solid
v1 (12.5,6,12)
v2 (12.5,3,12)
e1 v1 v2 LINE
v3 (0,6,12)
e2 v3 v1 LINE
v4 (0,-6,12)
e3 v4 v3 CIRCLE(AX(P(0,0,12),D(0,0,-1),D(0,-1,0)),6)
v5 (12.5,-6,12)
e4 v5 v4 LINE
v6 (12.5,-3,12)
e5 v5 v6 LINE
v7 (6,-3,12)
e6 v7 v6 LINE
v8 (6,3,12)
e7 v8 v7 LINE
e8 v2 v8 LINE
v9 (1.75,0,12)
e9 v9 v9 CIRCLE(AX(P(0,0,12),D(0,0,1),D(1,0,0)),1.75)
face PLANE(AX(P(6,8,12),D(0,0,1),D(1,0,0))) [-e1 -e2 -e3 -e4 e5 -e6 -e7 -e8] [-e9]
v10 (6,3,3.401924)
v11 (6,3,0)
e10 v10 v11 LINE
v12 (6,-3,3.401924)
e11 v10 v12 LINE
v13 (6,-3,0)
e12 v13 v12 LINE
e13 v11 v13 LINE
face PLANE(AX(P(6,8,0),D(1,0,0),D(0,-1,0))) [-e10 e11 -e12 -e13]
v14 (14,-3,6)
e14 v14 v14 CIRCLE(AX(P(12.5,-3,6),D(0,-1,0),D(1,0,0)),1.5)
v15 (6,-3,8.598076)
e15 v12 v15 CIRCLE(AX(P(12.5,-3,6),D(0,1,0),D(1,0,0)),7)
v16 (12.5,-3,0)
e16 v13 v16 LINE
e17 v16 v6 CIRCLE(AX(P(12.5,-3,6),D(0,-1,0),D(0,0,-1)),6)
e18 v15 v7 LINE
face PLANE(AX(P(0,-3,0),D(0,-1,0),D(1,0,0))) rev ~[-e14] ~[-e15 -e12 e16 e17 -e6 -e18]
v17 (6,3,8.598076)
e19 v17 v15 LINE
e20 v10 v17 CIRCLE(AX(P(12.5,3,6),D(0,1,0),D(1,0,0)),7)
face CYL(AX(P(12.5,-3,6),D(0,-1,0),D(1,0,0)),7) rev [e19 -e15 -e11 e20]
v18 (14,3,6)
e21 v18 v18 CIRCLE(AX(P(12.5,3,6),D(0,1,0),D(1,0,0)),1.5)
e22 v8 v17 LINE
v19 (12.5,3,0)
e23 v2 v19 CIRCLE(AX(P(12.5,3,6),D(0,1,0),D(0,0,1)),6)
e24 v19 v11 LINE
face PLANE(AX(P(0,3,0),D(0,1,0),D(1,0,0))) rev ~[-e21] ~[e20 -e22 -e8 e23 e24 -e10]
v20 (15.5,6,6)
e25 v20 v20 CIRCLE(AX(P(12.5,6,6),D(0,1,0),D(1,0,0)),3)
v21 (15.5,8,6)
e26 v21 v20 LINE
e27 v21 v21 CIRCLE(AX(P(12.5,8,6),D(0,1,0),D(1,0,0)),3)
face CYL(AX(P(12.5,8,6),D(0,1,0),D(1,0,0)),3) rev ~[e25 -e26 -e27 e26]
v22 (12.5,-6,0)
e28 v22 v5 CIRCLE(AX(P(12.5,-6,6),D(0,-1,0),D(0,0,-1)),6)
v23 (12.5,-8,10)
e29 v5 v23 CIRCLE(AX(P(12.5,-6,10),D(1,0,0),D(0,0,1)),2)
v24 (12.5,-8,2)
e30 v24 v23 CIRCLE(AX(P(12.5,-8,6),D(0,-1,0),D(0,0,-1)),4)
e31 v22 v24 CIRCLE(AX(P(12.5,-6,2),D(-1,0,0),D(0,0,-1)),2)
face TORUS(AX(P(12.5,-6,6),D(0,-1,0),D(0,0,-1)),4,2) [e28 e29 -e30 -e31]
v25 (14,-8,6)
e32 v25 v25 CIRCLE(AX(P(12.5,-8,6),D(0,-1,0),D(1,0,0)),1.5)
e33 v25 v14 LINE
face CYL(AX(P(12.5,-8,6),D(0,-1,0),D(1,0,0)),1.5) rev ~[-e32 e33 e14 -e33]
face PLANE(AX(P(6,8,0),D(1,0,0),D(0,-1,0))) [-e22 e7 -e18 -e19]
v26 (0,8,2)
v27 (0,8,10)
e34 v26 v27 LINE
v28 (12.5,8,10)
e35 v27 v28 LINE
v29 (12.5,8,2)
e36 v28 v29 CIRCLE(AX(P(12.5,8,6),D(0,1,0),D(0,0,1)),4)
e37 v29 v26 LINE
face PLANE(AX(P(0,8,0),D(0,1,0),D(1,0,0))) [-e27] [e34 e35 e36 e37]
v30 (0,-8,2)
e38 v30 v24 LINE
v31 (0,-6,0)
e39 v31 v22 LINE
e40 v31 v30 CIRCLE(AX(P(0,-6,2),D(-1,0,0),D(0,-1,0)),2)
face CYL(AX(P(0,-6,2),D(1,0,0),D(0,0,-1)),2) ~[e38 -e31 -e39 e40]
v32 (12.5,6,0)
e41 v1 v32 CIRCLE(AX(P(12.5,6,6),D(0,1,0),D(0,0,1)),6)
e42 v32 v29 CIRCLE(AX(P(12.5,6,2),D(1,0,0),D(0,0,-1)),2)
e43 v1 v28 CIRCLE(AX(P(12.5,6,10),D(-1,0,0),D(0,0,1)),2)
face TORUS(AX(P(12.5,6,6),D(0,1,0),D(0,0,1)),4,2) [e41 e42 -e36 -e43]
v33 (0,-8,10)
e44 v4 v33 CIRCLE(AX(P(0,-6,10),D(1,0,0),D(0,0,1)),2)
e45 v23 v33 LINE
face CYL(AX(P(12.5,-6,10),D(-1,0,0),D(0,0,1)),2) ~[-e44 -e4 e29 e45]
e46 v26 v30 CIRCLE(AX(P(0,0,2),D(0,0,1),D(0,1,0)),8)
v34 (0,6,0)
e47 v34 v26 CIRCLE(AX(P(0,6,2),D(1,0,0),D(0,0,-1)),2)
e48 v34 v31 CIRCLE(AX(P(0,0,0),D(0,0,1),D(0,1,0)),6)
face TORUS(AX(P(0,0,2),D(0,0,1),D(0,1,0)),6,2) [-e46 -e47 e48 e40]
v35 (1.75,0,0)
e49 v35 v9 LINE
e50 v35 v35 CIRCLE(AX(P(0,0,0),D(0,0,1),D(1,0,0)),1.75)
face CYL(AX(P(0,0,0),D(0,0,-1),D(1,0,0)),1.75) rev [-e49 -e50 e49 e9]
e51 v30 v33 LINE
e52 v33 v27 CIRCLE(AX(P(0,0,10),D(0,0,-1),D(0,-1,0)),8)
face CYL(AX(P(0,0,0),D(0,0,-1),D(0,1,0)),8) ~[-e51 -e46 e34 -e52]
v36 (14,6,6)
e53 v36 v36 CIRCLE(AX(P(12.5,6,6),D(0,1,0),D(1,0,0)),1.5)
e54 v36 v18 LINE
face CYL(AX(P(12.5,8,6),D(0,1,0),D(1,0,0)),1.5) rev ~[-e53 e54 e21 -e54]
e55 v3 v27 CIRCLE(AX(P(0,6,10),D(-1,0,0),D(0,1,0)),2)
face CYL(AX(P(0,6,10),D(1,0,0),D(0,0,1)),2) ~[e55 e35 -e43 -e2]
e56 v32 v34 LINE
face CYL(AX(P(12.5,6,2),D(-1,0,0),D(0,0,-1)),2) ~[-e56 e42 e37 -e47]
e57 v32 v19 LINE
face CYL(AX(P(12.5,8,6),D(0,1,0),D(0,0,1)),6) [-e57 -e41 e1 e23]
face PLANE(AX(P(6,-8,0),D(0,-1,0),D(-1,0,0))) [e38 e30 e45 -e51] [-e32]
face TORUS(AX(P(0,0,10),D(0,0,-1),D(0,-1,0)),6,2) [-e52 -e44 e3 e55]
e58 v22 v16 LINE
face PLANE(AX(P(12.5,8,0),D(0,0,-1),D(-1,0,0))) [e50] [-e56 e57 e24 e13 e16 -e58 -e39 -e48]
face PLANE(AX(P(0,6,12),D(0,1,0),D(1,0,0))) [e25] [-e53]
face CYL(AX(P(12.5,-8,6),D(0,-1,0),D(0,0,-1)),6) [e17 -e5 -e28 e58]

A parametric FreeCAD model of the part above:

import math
import FreeCAD as App
import Part
import Sketcher


def edges_at(feature, points):
    """Names of the edges that pass closest to the given points."""
    edges = feature.Shape.Edges
    near = lambda p: min(range(len(edges)), key=lambda i: edges[i].distToShape(Part.Vertex(*p))[0])
    return sorted({f"Edge{near(p) + 1}" for p in points})

doc = App.newDocument("Part")
params = doc.addObject("Spreadsheet::Sheet", "Params")
for row, (alias, value) in enumerate([
    ("sketch1_radius", "8 mm"),
    ("sketch1_diameter", "3.5 mm"),
    ("sketch1_width", "6 mm"),
    ("pad1_length", "12 mm"),
    ("sketch2_diameter", "3 mm"),
    ("sketch2_radius", "6 mm"),
    ("sketch2_width", "6.5 mm"),
    ("pad2_length", "5 mm"),
    ("sketch3_diameter", "3 mm"),
    ("sketch3_radius", "6 mm"),
    ("sketch3_width", "6.5 mm"),
    ("pad3_length", "5 mm"),
    ("sketch4_diameter", "6 mm"),
    ("sketch4_diameter2", "3 mm"),
    ("pocket1_length", "2 mm"),
    ("sketch5_diameter", "14 mm"),
    ("pocket2_length", "6 mm"),
    ("fillet_radius", "2 mm"),
], start=1):
    params.set(f"A{row}", alias)
    params.set(f"B{row}", "=" + value)
    params.setAlias(f"B{row}", alias)

body = doc.addObject("PartDesign::Body", "Body")

sketch1 = body.newObject("Sketcher::SketchObject", "Sketch")
sketch1.AttachmentSupport = (doc.getObject("XY_Plane"), [""])
sketch1.MapMode = "FlatFace"
sketch1.addGeometry(Part.LineSegment(App.Vector(6, 8, 0), App.Vector(0, 8, 0)), False)
sketch1.addGeometry(Part.ArcOfCircle(Part.Circle(App.Vector(0, 0, 0), App.Vector(0, 0, 1), 8), math.radians(90), math.radians(270)), False)
sketch1.addGeometry(Part.LineSegment(App.Vector(0, -8, 0), App.Vector(6, -8, 0)), False)
sketch1.addGeometry(Part.LineSegment(App.Vector(6, -8, 0), App.Vector(6, 8, 0)), False)
sketch1.addGeometry(Part.Circle(App.Vector(0, 0, 0), App.Vector(0, 0, 1), 1.8), False)
sketch1.addConstraint(Sketcher.Constraint("Tangent", 0, 2, 1, 1))
sketch1.addConstraint(Sketcher.Constraint("Tangent", 1, 2, 2, 1))
sketch1.addConstraint(Sketcher.Constraint("Coincident", 2, 2, 3, 1))
sketch1.addConstraint(Sketcher.Constraint("Coincident", 3, 2, 0, 1))
sketch1.addConstraint(Sketcher.Constraint("Horizontal", 0))
sketch1.addConstraint(Sketcher.Constraint("Horizontal", 2))
sketch1.addConstraint(Sketcher.Constraint("Vertical", 3))
sketch1.addConstraint(Sketcher.Constraint("Coincident", 1, 3, -1, 1))
sketch1.addConstraint(Sketcher.Constraint("Coincident", 4, 3, -1, 1))
sketch1.addConstraint(Sketcher.Constraint("Radius", 1, 8.0))
sketch1.addConstraint(Sketcher.Constraint("Diameter", 4, 3.5))
sketch1.addConstraint(Sketcher.Constraint("DistanceX", 0, 2, 0, 1, 6.0))
sketch1.setExpression("Constraints[9]", "Params.sketch1_radius")
sketch1.setExpression("Constraints[10]", "Params.sketch1_diameter")
sketch1.setExpression("Constraints[11]", "Params.sketch1_width")
pad1 = body.newObject("PartDesign::Pad", "Pad")
pad1.Profile = sketch1
pad1.setExpression("Length", "Params.pad1_length")

sketch2 = body.newObject("Sketcher::SketchObject", "Sketch001")
sketch2.AttachmentSupport = (doc.getObject("XZ_Plane"), [""])
sketch2.MapMode = "FlatFace"
sketch2.AttachmentOffset = App.Placement(App.Vector(0, 0, 8), App.Rotation())
sketch2.addGeometry(Part.LineSegment(App.Vector(6, 12, 0), App.Vector(6, 0, 0)), False)
sketch2.addGeometry(Part.LineSegment(App.Vector(6, 0, 0), App.Vector(12.5, 0, 0)), False)
sketch2.addGeometry(Part.ArcOfCircle(Part.Circle(App.Vector(12.5, 6, 0), App.Vector(0, 0, 1), 6), math.radians(-90), math.radians(90)), False)
sketch2.addGeometry(Part.LineSegment(App.Vector(12.5, 12, 0), App.Vector(6, 12, 0)), False)
sketch2.addGeometry(Part.Circle(App.Vector(12.5, 6, 0), App.Vector(0, 0, 1), 1.5), False)
sketch2.addConstraint(Sketcher.Constraint("Coincident", 0, 2, 1, 1))
sketch2.addConstraint(Sketcher.Constraint("Tangent", 1, 2, 2, 1))
sketch2.addConstraint(Sketcher.Constraint("Tangent", 2, 2, 3, 1))
sketch2.addConstraint(Sketcher.Constraint("Coincident", 3, 2, 0, 1))
sketch2.addConstraint(Sketcher.Constraint("Vertical", 0))
sketch2.addConstraint(Sketcher.Constraint("Horizontal", 1))
sketch2.addConstraint(Sketcher.Constraint("Horizontal", 3))
sketch2.addConstraint(Sketcher.Constraint("Coincident", 4, 3, 2, 3))
sketch2.addConstraint(Sketcher.Constraint("PointOnObject", 0, 2, -1))
sketch2.addConstraint(Sketcher.Constraint("Diameter", 4, 3.0))
sketch2.addConstraint(Sketcher.Constraint("Radius", 2, 6.0))
sketch2.addConstraint(Sketcher.Constraint("DistanceX", -1, 1, 2, 3, 12.5))
sketch2.addConstraint(Sketcher.Constraint("DistanceX", 1, 1, 1, 2, 6.5))
sketch2.setExpression("Constraints[9]", "Params.sketch2_diameter")
sketch2.setExpression("Constraints[10]", "Params.sketch2_radius")
sketch2.setExpression("Constraints[12]", "Params.sketch2_width")
pad2 = body.newObject("PartDesign::Pad", "Pad001")
pad2.Profile = sketch2
pad2.setExpression("Length", "Params.pad2_length")
pad2.Reversed = True

sketch3 = body.newObject("Sketcher::SketchObject", "Sketch002")
sketch3.AttachmentSupport = (doc.getObject("XZ_Plane"), [""])
sketch3.MapMode = "FlatFace"
sketch3.AttachmentOffset = App.Placement(App.Vector(0, 0, -8), App.Rotation())
sketch3.addGeometry(Part.LineSegment(App.Vector(6, 0, 0), App.Vector(6, 12, 0)), False)
sketch3.addGeometry(Part.LineSegment(App.Vector(6, 12, 0), App.Vector(12.5, 12, 0)), False)
sketch3.addGeometry(Part.ArcOfCircle(Part.Circle(App.Vector(12.5, 6, 0), App.Vector(0, 0, 1), 6), math.radians(-90), math.radians(90)), False)
sketch3.addGeometry(Part.LineSegment(App.Vector(12.5, 0, 0), App.Vector(6, 0, 0)), False)
sketch3.addGeometry(Part.Circle(App.Vector(12.5, 6, 0), App.Vector(0, 0, 1), 1.5), False)
sketch3.addConstraint(Sketcher.Constraint("Coincident", 0, 2, 1, 1))
sketch3.addConstraint(Sketcher.Constraint("Tangent", 1, 2, 2, 2))
sketch3.addConstraint(Sketcher.Constraint("Tangent", 2, 1, 3, 1))
sketch3.addConstraint(Sketcher.Constraint("Coincident", 3, 2, 0, 1))
sketch3.addConstraint(Sketcher.Constraint("Vertical", 0))
sketch3.addConstraint(Sketcher.Constraint("Horizontal", 1))
sketch3.addConstraint(Sketcher.Constraint("Horizontal", 3))
sketch3.addConstraint(Sketcher.Constraint("Coincident", 4, 3, 2, 3))
sketch3.addConstraint(Sketcher.Constraint("PointOnObject", 2, 1, -1))
sketch3.addConstraint(Sketcher.Constraint("Diameter", 4, 3.0))
sketch3.addConstraint(Sketcher.Constraint("Radius", 2, 6.0))
sketch3.addConstraint(Sketcher.Constraint("DistanceX", 1, 1, 1, 2, 6.5))
sketch3.addConstraint(Sketcher.Constraint("DistanceX", -1, 1, 0, 2, 6.0))
sketch3.setExpression("Constraints[9]", "Params.sketch3_diameter")
sketch3.setExpression("Constraints[10]", "Params.sketch3_radius")
sketch3.setExpression("Constraints[11]", "Params.sketch3_width")
pad3 = body.newObject("PartDesign::Pad", "Pad002")
pad3.Profile = sketch3
pad3.setExpression("Length", "Params.pad3_length")

sketch4 = body.newObject("Sketcher::SketchObject", "Sketch003")
sketch4.AttachmentSupport = (doc.getObject("XZ_Plane"), [""])
sketch4.MapMode = "FlatFace"
sketch4.AttachmentOffset = App.Placement(App.Vector(0, 0, -8), App.Rotation())
sketch4.addGeometry(Part.Circle(App.Vector(12.5, 6, 0), App.Vector(0, 0, 1), 3), False)
sketch4.addGeometry(Part.Circle(App.Vector(12.5, 6, 0), App.Vector(0, 0, 1), 1.5), False)
sketch4.addConstraint(Sketcher.Constraint("Coincident", 1, 3, 0, 3))
sketch4.addConstraint(Sketcher.Constraint("Diameter", 0, 6.0))
sketch4.addConstraint(Sketcher.Constraint("Diameter", 1, 3.0))
sketch4.addConstraint(Sketcher.Constraint("DistanceY", -1, 1, 0, 3, 6.0))
sketch4.addConstraint(Sketcher.Constraint("DistanceX", -1, 1, 0, 3, 12.5))
sketch4.setExpression("Constraints[1]", "Params.sketch4_diameter")
sketch4.setExpression("Constraints[2]", "Params.sketch4_diameter2")
pocket1 = body.newObject("PartDesign::Pocket", "Pocket")
pocket1.Profile = sketch4
pocket1.setExpression("Length", "Params.pocket1_length")
pocket1.Reversed = True

sketch5 = body.newObject("Sketcher::SketchObject", "Sketch004")
sketch5.AttachmentSupport = (doc.getObject("XZ_Plane"), [""])
sketch5.MapMode = "FlatFace"
sketch5.AttachmentOffset = App.Placement(App.Vector(0, 0, 3), App.Rotation())
sketch5.addGeometry(Part.Circle(App.Vector(12, 6, 0), App.Vector(0, 0, 1), 7), False)
sketch5.addConstraint(Sketcher.Constraint("Diameter", 0, 14.0))
sketch5.addConstraint(Sketcher.Constraint("DistanceY", -1, 1, 0, 3, 6.0))
sketch5.addConstraint(Sketcher.Constraint("DistanceX", -1, 1, 0, 3, 12.5))
sketch5.setExpression("Constraints[0]", "Params.sketch5_diameter")
pocket2 = body.newObject("PartDesign::Pocket", "Pocket001")
pocket2.Profile = sketch5
pocket2.setExpression("Length", "Params.pocket2_length")
doc.recompute()

fillet = body.newObject("PartDesign::Fillet", "Fillet")
fillet.Base = (pocket2, edges_at(pocket2, [
    (18.5, 8, 6),
    (6.25, 8, 0),
    (-8, 0, 0),
    (6.25, -8, 0),
    (18.5, -8, 6),
    (6.25, -8, 12),
    (-8, 0, 12),
    (6.25, 8, 12),
]))
fillet.setExpression("Radius", "Params.fillet_radius")

doc.recompute()
